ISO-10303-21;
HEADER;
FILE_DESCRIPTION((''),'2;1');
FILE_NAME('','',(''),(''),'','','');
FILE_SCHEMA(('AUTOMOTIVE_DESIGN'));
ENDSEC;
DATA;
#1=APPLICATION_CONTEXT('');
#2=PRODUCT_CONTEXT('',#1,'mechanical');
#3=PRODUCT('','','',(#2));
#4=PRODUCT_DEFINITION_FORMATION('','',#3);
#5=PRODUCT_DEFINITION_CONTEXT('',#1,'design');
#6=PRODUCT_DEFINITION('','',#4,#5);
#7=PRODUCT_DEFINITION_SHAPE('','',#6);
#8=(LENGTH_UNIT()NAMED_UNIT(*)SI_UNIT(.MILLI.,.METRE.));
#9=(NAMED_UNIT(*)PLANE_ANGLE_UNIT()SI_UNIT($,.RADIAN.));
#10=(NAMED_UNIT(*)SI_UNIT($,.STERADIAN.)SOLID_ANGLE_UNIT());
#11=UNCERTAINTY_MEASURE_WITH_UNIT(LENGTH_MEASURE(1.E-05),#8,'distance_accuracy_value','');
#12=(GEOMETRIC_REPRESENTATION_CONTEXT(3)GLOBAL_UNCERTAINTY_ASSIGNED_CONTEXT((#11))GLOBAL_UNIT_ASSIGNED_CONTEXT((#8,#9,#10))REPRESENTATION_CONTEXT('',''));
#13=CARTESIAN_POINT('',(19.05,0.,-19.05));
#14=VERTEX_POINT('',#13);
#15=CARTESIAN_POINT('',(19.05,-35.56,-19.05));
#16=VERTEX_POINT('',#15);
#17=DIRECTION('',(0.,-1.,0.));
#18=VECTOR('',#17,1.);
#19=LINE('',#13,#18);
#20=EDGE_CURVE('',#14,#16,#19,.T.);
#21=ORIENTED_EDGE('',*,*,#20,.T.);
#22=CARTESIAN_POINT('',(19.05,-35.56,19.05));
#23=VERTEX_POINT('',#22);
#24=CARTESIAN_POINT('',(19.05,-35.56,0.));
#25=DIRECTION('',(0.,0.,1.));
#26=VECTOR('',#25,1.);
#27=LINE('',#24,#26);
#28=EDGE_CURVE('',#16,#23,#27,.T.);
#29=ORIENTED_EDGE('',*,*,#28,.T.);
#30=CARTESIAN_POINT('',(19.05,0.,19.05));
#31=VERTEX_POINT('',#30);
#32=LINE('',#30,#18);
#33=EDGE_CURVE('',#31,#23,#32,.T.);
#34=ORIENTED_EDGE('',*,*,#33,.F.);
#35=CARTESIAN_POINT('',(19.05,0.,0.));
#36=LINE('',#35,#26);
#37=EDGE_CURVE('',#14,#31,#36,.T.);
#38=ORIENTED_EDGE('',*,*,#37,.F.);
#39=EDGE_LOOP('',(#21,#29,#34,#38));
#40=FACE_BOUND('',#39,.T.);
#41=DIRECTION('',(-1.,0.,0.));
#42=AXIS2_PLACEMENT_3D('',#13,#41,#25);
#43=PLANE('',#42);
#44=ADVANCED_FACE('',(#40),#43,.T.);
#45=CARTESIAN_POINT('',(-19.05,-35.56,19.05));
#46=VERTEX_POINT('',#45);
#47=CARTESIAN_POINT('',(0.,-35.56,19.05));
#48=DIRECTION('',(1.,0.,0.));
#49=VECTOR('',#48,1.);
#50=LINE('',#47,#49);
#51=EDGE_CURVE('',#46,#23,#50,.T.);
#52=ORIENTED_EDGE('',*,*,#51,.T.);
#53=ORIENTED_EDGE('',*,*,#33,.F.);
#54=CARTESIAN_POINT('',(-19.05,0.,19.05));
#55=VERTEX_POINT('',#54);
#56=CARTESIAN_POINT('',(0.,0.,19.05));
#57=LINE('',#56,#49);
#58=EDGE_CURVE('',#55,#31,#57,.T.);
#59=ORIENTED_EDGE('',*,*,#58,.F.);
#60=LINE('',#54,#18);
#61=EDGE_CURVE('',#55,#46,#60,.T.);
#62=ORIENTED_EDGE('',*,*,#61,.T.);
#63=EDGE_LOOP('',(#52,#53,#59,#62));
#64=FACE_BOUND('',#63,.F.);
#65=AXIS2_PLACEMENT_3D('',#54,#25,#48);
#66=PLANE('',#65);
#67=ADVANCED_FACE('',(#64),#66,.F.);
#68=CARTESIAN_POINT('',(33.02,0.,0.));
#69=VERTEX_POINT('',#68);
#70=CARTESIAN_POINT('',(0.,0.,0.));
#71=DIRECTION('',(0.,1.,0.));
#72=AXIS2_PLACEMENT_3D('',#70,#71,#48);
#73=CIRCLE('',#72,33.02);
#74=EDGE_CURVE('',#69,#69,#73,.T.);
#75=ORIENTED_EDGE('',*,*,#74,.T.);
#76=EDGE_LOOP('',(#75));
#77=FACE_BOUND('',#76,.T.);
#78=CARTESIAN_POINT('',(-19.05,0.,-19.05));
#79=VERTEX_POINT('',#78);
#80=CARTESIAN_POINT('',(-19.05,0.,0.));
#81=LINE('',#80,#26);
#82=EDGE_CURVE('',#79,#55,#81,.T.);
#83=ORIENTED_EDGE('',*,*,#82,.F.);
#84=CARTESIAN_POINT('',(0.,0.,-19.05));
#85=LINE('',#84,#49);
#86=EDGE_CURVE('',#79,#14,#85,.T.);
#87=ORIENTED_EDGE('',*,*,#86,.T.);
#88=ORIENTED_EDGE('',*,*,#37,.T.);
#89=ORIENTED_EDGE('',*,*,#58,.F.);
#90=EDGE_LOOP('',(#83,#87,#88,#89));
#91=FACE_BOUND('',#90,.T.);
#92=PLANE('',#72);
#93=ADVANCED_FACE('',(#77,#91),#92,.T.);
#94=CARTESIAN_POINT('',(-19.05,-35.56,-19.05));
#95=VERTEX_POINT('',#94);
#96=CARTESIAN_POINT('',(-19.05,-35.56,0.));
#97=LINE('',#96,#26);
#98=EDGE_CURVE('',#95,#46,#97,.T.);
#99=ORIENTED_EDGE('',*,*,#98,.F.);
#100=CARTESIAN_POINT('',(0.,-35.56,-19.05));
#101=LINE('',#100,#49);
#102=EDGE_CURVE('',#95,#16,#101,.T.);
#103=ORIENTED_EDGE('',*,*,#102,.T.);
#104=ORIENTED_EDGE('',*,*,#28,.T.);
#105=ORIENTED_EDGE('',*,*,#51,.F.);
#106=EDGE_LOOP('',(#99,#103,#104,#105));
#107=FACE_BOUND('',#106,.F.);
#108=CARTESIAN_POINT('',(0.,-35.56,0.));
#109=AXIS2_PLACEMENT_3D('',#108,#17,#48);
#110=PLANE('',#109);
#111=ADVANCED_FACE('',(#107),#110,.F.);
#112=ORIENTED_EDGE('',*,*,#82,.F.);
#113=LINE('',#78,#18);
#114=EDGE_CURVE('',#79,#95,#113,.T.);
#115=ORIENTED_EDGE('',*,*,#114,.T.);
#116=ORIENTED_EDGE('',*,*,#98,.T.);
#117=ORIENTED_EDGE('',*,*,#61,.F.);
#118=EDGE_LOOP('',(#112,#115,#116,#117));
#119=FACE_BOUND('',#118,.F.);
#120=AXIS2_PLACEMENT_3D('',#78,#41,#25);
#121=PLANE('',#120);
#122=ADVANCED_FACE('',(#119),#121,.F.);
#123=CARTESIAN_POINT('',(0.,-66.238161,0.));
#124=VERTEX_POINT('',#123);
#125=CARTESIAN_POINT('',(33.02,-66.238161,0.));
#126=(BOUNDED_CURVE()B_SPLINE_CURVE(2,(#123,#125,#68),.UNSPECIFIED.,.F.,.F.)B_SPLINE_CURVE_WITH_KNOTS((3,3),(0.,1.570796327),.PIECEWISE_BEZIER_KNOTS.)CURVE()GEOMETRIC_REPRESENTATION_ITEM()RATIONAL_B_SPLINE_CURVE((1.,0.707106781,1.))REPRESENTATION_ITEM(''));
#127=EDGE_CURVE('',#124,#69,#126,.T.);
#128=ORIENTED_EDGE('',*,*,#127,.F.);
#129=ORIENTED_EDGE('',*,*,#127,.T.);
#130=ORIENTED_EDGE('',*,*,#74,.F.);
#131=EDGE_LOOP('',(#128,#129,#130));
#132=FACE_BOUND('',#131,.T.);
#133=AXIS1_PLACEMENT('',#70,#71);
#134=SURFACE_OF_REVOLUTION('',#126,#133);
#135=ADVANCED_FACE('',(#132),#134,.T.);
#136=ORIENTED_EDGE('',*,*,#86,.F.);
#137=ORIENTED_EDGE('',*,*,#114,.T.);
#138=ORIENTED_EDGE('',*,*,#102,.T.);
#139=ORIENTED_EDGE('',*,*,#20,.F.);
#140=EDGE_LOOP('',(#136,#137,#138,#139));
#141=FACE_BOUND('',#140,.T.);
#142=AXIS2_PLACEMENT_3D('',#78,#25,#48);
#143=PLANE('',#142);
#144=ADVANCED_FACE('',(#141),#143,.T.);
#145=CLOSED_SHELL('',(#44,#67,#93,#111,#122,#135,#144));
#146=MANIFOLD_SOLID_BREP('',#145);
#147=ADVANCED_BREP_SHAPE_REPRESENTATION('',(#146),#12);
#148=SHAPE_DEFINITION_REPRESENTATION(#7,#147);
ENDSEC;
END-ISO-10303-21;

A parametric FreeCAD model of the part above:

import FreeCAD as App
import Part
import Sketcher

V = App.Vector
Q = App.Units.Quantity


def add_polygon(sketch, points):
    """Adds a closed chain of lines whose ends are joined by coincident constraints."""
    first, n = sketch.GeometryCount, len(points)
    for a, b in zip(points, points[1:] + points[:1]):
        sketch.addGeometry(Part.LineSegment(App.Vector(*a, 0), App.Vector(*b, 0)), False)
    for i in range(n):
        sketch.addConstraint(Sketcher.Constraint("Coincident", first + i, 2, first + (i + 1) % n, 1))

doc = App.newDocument("Part")
body = doc.addObject("PartDesign::Body", "Body")

# Sketch on XY plane
sketch1 = doc.addObject("Sketcher::SketchObject", "Sketch")
body.addObject(sketch1)
sketch1.AttachmentSupport = (doc.XY_Plane, [""])
sketch1.MapMode = "FlatFace"
sketch1.addGeometry([
    Part.LineSegment(V(0, 0, 0), V(0, -66.238161, 0)),
    Part.BSplineCurve([V(0, -66.238161, 0), V(33.02, -66.238161, 0), V(33.02, 0, 0)], [3, 3], [0, 1.570796327], False, 2, [1, 0.707106781, 1], False),
    Part.LineSegment(V(33.02, 0, 0), V(0, 0, 0)),
], False)
sketch1.addConstraint([
    Sketcher.Constraint("Block", 1),
    Sketcher.Constraint("Coincident", 0, 2, 1, 1),
    Sketcher.Constraint("Coincident", 1, 2, 2, 1),
    Sketcher.Constraint("Coincident", 2, 2, 0, 1),
    Sketcher.Constraint("Vertical", 0),
    Sketcher.Constraint("Horizontal", 2),
])
revolution = doc.addObject("PartDesign::Revolution", "Revolution")
body.addObject(revolution)
revolution.Profile = sketch1
revolution.ReferenceAxis = (sketch1, ["V_Axis"])
revolution.Angle = 360

# Sketch on XZ plane
sketch2 = doc.addObject("Sketcher::SketchObject", "Sketch001")
body.addObject(sketch2)
sketch2.AttachmentSupport = (doc.XZ_Plane, [""])
sketch2.MapMode = "FlatFace"
add_polygon(sketch2, [(-19.05, 19.05), (-19.05, -19.05), (19.05, -19.05), (19.05, 19.05)])  # lines 0-3
sketch2.addConstraint([
    Sketcher.Constraint("Vertical", 0),
    Sketcher.Constraint("Horizontal", 1),
    Sketcher.Constraint("Vertical", 2),
    Sketcher.Constraint("Horizontal", 3),
    Sketcher.Constraint("Symmetric", 0, 2, 2, 2, -1, 1),
    Sketcher.Constraint("Equal", 3, 0),
    Sketcher.Constraint("DistanceX", 1, 1, 1, 2, Q("1.5 in")),
])
pocket1 = doc.addObject("PartDesign::Pocket", "Pocket")
body.addObject(pocket1)
pocket1.Profile = sketch2
pocket1.Length = Q("1.4 in")
pocket1.Reversed = True

doc.recompute()
